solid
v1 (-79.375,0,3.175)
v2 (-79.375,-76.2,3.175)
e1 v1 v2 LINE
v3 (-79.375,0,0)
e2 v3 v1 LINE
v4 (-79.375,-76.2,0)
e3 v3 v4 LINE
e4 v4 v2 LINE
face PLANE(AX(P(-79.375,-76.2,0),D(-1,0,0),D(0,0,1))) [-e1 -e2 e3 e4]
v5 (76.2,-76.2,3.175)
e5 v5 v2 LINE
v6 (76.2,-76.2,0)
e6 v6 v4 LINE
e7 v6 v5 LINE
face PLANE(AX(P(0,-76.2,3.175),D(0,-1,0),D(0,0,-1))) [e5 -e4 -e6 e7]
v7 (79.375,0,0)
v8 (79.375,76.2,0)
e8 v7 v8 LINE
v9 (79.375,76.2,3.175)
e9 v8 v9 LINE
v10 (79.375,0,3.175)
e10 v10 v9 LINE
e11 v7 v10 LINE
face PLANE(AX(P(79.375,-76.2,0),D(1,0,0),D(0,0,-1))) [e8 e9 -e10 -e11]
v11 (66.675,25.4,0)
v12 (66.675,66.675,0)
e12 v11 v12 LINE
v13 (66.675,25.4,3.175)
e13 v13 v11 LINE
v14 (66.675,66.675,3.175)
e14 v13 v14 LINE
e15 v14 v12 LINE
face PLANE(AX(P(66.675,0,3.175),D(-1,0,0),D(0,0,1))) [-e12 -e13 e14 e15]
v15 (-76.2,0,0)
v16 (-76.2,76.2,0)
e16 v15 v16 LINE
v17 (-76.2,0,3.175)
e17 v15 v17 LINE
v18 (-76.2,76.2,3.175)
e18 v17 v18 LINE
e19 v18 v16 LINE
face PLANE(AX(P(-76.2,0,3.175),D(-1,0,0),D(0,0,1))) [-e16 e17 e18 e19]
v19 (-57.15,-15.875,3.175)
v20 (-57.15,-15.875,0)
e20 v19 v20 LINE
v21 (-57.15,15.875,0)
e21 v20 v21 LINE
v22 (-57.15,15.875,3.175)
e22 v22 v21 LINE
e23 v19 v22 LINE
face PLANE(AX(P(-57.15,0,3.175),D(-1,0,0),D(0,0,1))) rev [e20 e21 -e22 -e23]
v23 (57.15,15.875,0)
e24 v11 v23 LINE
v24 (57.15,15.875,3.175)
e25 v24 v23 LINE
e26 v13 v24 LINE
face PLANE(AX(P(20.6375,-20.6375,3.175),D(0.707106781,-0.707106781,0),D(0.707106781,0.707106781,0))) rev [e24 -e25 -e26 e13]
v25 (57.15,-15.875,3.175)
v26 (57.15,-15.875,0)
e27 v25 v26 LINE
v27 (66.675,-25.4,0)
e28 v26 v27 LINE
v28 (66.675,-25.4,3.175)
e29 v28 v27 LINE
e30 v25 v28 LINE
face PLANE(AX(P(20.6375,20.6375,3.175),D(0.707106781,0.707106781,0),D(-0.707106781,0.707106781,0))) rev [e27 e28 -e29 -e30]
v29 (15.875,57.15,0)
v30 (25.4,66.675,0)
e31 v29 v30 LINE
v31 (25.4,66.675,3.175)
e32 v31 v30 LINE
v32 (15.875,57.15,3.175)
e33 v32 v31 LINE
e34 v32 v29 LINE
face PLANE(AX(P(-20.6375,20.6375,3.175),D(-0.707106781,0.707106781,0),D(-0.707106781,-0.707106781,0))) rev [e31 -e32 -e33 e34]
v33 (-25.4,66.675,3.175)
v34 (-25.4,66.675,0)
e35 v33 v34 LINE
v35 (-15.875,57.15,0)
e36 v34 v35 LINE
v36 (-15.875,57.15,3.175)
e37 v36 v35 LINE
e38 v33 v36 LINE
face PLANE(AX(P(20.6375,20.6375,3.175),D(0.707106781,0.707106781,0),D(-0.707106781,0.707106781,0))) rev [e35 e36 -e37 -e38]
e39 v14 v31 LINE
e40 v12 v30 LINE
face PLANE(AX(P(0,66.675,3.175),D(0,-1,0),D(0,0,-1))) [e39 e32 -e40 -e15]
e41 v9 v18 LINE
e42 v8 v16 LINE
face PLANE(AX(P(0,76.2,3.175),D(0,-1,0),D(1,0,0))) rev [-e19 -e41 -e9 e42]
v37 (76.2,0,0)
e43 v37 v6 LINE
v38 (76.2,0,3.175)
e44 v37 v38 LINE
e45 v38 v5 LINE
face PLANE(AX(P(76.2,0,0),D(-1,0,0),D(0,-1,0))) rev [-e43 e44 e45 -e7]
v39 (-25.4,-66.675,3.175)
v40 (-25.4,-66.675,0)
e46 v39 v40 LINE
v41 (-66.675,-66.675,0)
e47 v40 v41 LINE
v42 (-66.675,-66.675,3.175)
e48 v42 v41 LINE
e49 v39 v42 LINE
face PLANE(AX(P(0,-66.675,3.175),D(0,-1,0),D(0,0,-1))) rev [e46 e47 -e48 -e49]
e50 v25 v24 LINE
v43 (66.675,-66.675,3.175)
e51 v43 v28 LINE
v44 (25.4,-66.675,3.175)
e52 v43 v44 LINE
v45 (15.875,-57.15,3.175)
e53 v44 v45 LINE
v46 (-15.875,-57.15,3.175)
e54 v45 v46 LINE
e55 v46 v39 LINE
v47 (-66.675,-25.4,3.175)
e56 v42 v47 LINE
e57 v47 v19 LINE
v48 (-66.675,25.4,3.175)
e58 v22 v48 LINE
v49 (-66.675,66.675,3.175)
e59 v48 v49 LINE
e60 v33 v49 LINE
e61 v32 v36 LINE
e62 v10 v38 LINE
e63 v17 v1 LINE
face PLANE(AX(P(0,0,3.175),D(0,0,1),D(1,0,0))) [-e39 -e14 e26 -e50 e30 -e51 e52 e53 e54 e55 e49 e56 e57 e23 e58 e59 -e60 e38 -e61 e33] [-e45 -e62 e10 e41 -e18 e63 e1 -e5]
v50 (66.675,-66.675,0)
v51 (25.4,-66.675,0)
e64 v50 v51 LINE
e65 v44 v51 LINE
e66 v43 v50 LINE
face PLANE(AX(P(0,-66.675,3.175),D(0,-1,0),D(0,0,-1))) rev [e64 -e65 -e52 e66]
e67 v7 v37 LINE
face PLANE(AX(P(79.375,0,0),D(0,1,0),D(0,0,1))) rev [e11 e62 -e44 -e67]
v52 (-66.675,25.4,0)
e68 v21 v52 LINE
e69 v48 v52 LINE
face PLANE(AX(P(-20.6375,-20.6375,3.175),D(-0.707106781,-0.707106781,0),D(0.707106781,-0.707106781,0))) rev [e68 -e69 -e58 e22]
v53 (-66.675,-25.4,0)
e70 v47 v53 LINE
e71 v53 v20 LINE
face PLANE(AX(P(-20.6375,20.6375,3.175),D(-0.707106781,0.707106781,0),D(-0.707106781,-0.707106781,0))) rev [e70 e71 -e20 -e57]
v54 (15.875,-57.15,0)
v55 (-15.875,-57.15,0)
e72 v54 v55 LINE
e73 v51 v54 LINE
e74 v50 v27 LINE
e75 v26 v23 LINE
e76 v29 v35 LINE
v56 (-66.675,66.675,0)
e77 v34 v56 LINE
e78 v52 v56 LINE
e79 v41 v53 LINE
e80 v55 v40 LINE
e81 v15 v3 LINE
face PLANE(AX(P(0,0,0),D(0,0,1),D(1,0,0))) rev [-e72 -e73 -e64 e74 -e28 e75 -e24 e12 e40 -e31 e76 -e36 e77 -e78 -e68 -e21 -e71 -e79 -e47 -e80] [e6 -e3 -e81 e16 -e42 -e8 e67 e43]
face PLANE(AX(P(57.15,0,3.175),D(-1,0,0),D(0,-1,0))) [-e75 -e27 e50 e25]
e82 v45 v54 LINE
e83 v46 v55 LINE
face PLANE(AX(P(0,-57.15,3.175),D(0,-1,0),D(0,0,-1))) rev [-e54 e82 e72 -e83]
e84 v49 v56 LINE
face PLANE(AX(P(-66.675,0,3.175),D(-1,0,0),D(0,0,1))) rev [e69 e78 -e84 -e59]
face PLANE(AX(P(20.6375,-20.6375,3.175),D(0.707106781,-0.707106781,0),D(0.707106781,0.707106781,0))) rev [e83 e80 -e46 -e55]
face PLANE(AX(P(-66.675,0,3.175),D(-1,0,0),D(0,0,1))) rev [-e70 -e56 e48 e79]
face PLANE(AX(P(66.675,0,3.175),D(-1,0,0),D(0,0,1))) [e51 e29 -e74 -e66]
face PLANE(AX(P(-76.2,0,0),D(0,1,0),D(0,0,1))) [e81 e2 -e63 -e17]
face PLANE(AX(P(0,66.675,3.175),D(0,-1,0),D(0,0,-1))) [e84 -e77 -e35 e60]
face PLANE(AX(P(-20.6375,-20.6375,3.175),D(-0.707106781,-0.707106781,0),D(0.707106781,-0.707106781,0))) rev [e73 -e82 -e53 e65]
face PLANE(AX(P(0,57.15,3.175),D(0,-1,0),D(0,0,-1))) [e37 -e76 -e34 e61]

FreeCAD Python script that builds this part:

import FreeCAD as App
import Part
import Sketcher
from FreeCAD import Vector
Q = App.Units.Quantity

doc = App.newDocument("Part")
params = doc.addObject("Spreadsheet::Sheet", "Params")
for row, (alias, value) in enumerate([
    ("sketch1_width", "6 in"),
    ("sketch1_width2", "1.25 in"),
    ("pad1_length", "0.125 in"),
    ("sketch2_height", "6 in"),
    ("sketch2_width", "0.125 in"),
    ("pad2_length", "0.125 in"),
    ("sketch3_height", "3 in"),
    ("sketch3_width", "0.125 in"),
    ("pad3_length", "0.125 in"),
    ("sketch4_height", "3 in"),
    ("sketch4_width", "0.125 in"),
    ("pocket1_length", "0.125 in"),
], start=1):
    params.set(f"A{row}", alias)
    params.set(f"B{row}", "=" + value)
    params.setAlias(f"B{row}", alias)

body = doc.addObject("PartDesign::Body", "Body")

# Sketch on XY plane
sketch1 = doc.addObject("Sketcher::SketchObject", "Sketch")
body.addObject(sketch1)
sketch1.AttachmentSupport = (doc.XY_Plane, [""])
sketch1.MapMode = "FlatFace"
sketch1.addGeometry(Part.LineSegment(Vector(-76, 76, 0), Vector(-76, -76, 0)), False)
sketch1.addGeometry(Part.LineSegment(Vector(-76, -76, 0), Vector(76, -76, 0)), False)
sketch1.addGeometry(Part.LineSegment(Vector(76, -76, 0), Vector(76, 76, 0)), False)
sketch1.addGeometry(Part.LineSegment(Vector(76, 76, 0), Vector(-76, 76, 0)), False)
sketch1.addGeometry(Part.LineSegment(Vector(-25, -67, 0), Vector(-67, -67, 0)), False)
sketch1.addGeometry(Part.LineSegment(Vector(-67, -67, 0), Vector(-67, -25, 0)), False)
sketch1.addGeometry(Part.LineSegment(Vector(-67, -25, 0), Vector(-57, -16, 0)), False)
sketch1.addGeometry(Part.LineSegment(Vector(-57, -16, 0), Vector(-57, 16, 0)), False)
sketch1.addGeometry(Part.LineSegment(Vector(-57, 16, 0), Vector(-67, 25, 0)), False)
sketch1.addGeometry(Part.LineSegment(Vector(-67, 25, 0), Vector(-67, 67, 0)), False)
sketch1.addGeometry(Part.LineSegment(Vector(-67, 67, 0), Vector(-25, 67, 0)), False)
sketch1.addGeometry(Part.LineSegment(Vector(-25, 67, 0), Vector(-16, 57, 0)), False)
sketch1.addGeometry(Part.LineSegment(Vector(-16, 57, 0), Vector(16, 57, 0)), False)
sketch1.addGeometry(Part.LineSegment(Vector(16, 57, 0), Vector(25, 67, 0)), False)
sketch1.addGeometry(Part.LineSegment(Vector(25, 67, 0), Vector(67, 67, 0)), False)
sketch1.addGeometry(Part.LineSegment(Vector(67, 67, 0), Vector(67, 25, 0)), False)
sketch1.addGeometry(Part.LineSegment(Vector(67, 25, 0), Vector(57, 16, 0)), False)
sketch1.addGeometry(Part.LineSegment(Vector(57, 16, 0), Vector(57, -16, 0)), False)
sketch1.addGeometry(Part.LineSegment(Vector(57, -16, 0), Vector(67, -25, 0)), False)
sketch1.addGeometry(Part.LineSegment(Vector(67, -25, 0), Vector(67, -67, 0)), False)
sketch1.addGeometry(Part.LineSegment(Vector(67, -67, 0), Vector(25, -67, 0)), False)
sketch1.addGeometry(Part.LineSegment(Vector(25, -67, 0), Vector(16, -57, 0)), False)
sketch1.addGeometry(Part.LineSegment(Vector(16, -57, 0), Vector(-16, -57, 0)), False)
sketch1.addGeometry(Part.LineSegment(Vector(-16, -57, 0), Vector(-25, -67, 0)), False)
sketch1.addConstraint(Sketcher.Constraint("Coincident", 0, 2, 1, 1))
sketch1.addConstraint(Sketcher.Constraint("Coincident", 1, 2, 2, 1))
sketch1.addConstraint(Sketcher.Constraint("Coincident", 2, 2, 3, 1))
sketch1.addConstraint(Sketcher.Constraint("Coincident", 3, 2, 0, 1))
sketch1.addConstraint(Sketcher.Constraint("Coincident", 4, 2, 5, 1))
sketch1.addConstraint(Sketcher.Constraint("Coincident", 5, 2, 6, 1))
sketch1.addConstraint(Sketcher.Constraint("Coincident", 6, 2, 7, 1))
sketch1.addConstraint(Sketcher.Constraint("Coincident", 7, 2, 8, 1))
sketch1.addConstraint(Sketcher.Constraint("Coincident", 8, 2, 9, 1))
sketch1.addConstraint(Sketcher.Constraint("Coincident", 9, 2, 10, 1))
sketch1.addConstraint(Sketcher.Constraint("Coincident", 10, 2, 11, 1))
sketch1.addConstraint(Sketcher.Constraint("Coincident", 11, 2, 12, 1))
sketch1.addConstraint(Sketcher.Constraint("Coincident", 12, 2, 13, 1))
sketch1.addConstraint(Sketcher.Constraint("Coincident", 13, 2, 14, 1))
sketch1.addConstraint(Sketcher.Constraint("Coincident", 14, 2, 15, 1))
sketch1.addConstraint(Sketcher.Constraint("Coincident", 15, 2, 16, 1))
sketch1.addConstraint(Sketcher.Constraint("Coincident", 16, 2, 17, 1))
sketch1.addConstraint(Sketcher.Constraint("Coincident", 17, 2, 18, 1))
sketch1.addConstraint(Sketcher.Constraint("Coincident", 18, 2, 19, 1))
sketch1.addConstraint(Sketcher.Constraint("Coincident", 19, 2, 20, 1))
sketch1.addConstraint(Sketcher.Constraint("Coincident", 20, 2, 21, 1))
sketch1.addConstraint(Sketcher.Constraint("Coincident", 21, 2, 22, 1))
sketch1.addConstraint(Sketcher.Constraint("Coincident", 22, 2, 23, 1))
sketch1.addConstraint(Sketcher.Constraint("Coincident", 23, 2, 4, 1))
sketch1.addConstraint(Sketcher.Constraint("Vertical", 0))
sketch1.addConstraint(Sketcher.Constraint("Horizontal", 1))
sketch1.addConstraint(Sketcher.Constraint("Vertical", 2))
sketch1.addConstraint(Sketcher.Constraint("Horizontal", 3))
sketch1.addConstraint(Sketcher.Constraint("Horizontal", 4))
sketch1.addConstraint(Sketcher.Constraint("Vertical", 5))
sketch1.addConstraint(Sketcher.Constraint("Vertical", 7))
sketch1.addConstraint(Sketcher.Constraint("Vertical", 9))
sketch1.addConstraint(Sketcher.Constraint("Horizontal", 10))
sketch1.addConstraint(Sketcher.Constraint("Horizontal", 12))
sketch1.addConstraint(Sketcher.Constraint("Horizontal", 14))
sketch1.addConstraint(Sketcher.Constraint("Vertical", 15))
sketch1.addConstraint(Sketcher.Constraint("Vertical", 17))
sketch1.addConstraint(Sketcher.Constraint("Vertical", 19))
sketch1.addConstraint(Sketcher.Constraint("Horizontal", 20))
sketch1.addConstraint(Sketcher.Constraint("Horizontal", 22))
sketch1.addConstraint(Sketcher.Constraint("Symmetric", 0, 2, 2, 2, -1, 1))
sketch1.addConstraint(Sketcher.Constraint("Symmetric", 4, 2, 14, 2, -1, 1))
sketch1.addConstraint(Sketcher.Constraint("Symmetric", 6, 2, 16, 2, -1, 1))
sketch1.addConstraint(Sketcher.Constraint("Symmetric", 8, 2, 18, 2, -1, 1))
sketch1.addConstraint(Sketcher.Constraint("Symmetric", 10, 2, 20, 2, -1, 1))
sketch1.addConstraint(Sketcher.Constraint("Symmetric", 11, 2, 21, 2, -1, 1))
sketch1.addConstraint(Sketcher.Constraint("Symmetric", 10, 2, 13, 2, -2))
sketch1.addConstraint(Sketcher.Constraint("Symmetric", 8, 2, 15, 2, -2))
sketch1.addConstraint(Sketcher.Constraint("Perpendicular", 6, 8))
sketch1.addConstraint(Sketcher.Constraint("Parallel", 8, 11))
sketch1.addConstraint(Sketcher.Constraint("Perpendicular", 11, 13))
sketch1.addConstraint(Sketcher.Constraint("Parallel", 13, 16))
sketch1.addConstraint(Sketcher.Constraint("Perpendicular", 16, 18))
sketch1.addConstraint(Sketcher.Constraint("Perpendicular", 21, 23))
sketch1.addConstraint(Sketcher.Constraint("Horizontal", 7, 2, 16, 2))
sketch1.addConstraint(Sketcher.Constraint("Vertical", 11, 2, 22, 2))
sketch1.addConstraint(Sketcher.Constraint("Equal", 3, 0))
sketch1.addConstraint(Sketcher.Constraint("Equal", 20, 5))
sketch1.addConstraint(Sketcher.Constraint("Equal", 22, 7))
sketch1.addConstraint(Sketcher.Constraint("Equal", 8, 11))
sketch1.addConstraint(Sketcher.Constraint("DistanceX", 1, 1, 1, 2, Q("6 in")))
sketch1.addConstraint(Sketcher.Constraint("DistanceY", 5, 2, -1, 1, Q("1 in")))
sketch1.addConstraint(Sketcher.Constraint("DistanceY", 4, 2, 6, 2, Q("2 in")))
sketch1.addConstraint(Sketcher.Constraint("DistanceX", 12, 1, 12, 2, Q("1.25 in")))
sketch1.setExpression("Constraints[60]", "Params.sketch1_width")
sketch1.setExpression("Constraints[63]", "Params.sketch1_width2")
pad1 = doc.addObject("PartDesign::Pad", "Pad")
body.addObject(pad1)
pad1.Profile = sketch1
pad1.setExpression("Length", "Params.pad1_length")

# Sketch on XY plane
sketch2 = doc.addObject("Sketcher::SketchObject", "Sketch001")
body.addObject(sketch2)
sketch2.AttachmentSupport = (doc.XY_Plane, [""])
sketch2.MapMode = "FlatFace"
sketch2.AttachmentOffset = App.Placement(Vector(0, 0, 0.125 * 25.4), App.Rotation())
sketch2.addGeometry(Part.LineSegment(Vector(76.2, 76.2, 0), Vector(76.2, -76.2, 0)), False)
sketch2.addGeometry(Part.LineSegment(Vector(76.2, -76.2, 0), Vector(79.4, -76.2, 0)), False)
sketch2.addGeometry(Part.LineSegment(Vector(79.4, -76.2, 0), Vector(79.4, 76.2, 0)), False)
sketch2.addGeometry(Part.LineSegment(Vector(79.4, 76.2, 0), Vector(76.2, 76.2, 0)), False)
sketch2.addConstraint(Sketcher.Constraint("Coincident", 0, 2, 1, 1))
sketch2.addConstraint(Sketcher.Constraint("Coincident", 1, 2, 2, 1))
sketch2.addConstraint(Sketcher.Constraint("Coincident", 2, 2, 3, 1))
sketch2.addConstraint(Sketcher.Constraint("Coincident", 3, 2, 0, 1))
sketch2.addConstraint(Sketcher.Constraint("Vertical", 0))
sketch2.addConstraint(Sketcher.Constraint("Horizontal", 1))
sketch2.addConstraint(Sketcher.Constraint("Vertical", 2))
sketch2.addConstraint(Sketcher.Constraint("Horizontal", 3))
sketch2.addConstraint(Sketcher.Constraint("DistanceY", 0, 2, 0, 1, Q("6 in")))
sketch2.addConstraint(Sketcher.Constraint("DistanceX", -1, 1, 0, 2, Q("3 in")))
sketch2.addConstraint(Sketcher.Constraint("DistanceY", 0, 2, -1, 1, Q("3 in")))
sketch2.addConstraint(Sketcher.Constraint("DistanceX", 1, 1, 1, 2, Q("0.125 in")))
sketch2.setExpression("Constraints[8]", "Params.sketch2_height")
sketch2.setExpression("Constraints[11]", "Params.sketch2_width")
pad2 = doc.addObject("PartDesign::Pad", "Pad001")
body.addObject(pad2)
pad2.Profile = sketch2
pad2.setExpression("Length", "Params.pad2_length")
pad2.Reversed = True

# Sketch on XY plane
sketch3 = doc.addObject("Sketcher::SketchObject", "Sketch002")
body.addObject(sketch3)
sketch3.AttachmentSupport = (doc.XY_Plane, [""])
sketch3.MapMode = "FlatFace"
sketch3.AttachmentOffset = App.Placement(Vector(0, 0, 0.125 * 25.4), App.Rotation())
sketch3.addGeometry(Part.LineSegment(Vector(76.2, 76.2, 0), Vector(76.2, 0, 0)), False)
sketch3.addGeometry(Part.LineSegment(Vector(76.2, 0, 0), Vector(79.4, 0, 0)), False)
sketch3.addGeometry(Part.LineSegment(Vector(79.4, 0, 0), Vector(79.4, 76.2, 0)), False)
sketch3.addGeometry(Part.LineSegment(Vector(79.4, 76.2, 0), Vector(76.2, 76.2, 0)), False)
sketch3.addGeometry(Part.LineSegment(Vector(-79.4, 0, 0), Vector(-79.4, -76.2, 0)), False)
sketch3.addGeometry(Part.LineSegment(Vector(-79.4, -76.2, 0), Vector(-76.2, -76.2, 0)), False)
sketch3.addGeometry(Part.LineSegment(Vector(-76.2, -76.2, 0), Vector(-76.2, 0, 0)), False)
sketch3.addGeometry(Part.LineSegment(Vector(-76.2, 0, 0), Vector(-79.4, 0, 0)), False)
sketch3.addConstraint(Sketcher.Constraint("Coincident", 0, 2, 1, 1))
sketch3.addConstraint(Sketcher.Constraint("Coincident", 1, 2, 2, 1))
sketch3.addConstraint(Sketcher.Constraint("Coincident", 2, 2, 3, 1))
sketch3.addConstraint(Sketcher.Constraint("Coincident", 3, 2, 0, 1))
sketch3.addConstraint(Sketcher.Constraint("Coincident", 4, 2, 5, 1))
sketch3.addConstraint(Sketcher.Constraint("Coincident", 5, 2, 6, 1))
sketch3.addConstraint(Sketcher.Constraint("Coincident", 6, 2, 7, 1))
sketch3.addConstraint(Sketcher.Constraint("Coincident", 7, 2, 4, 1))
sketch3.addConstraint(Sketcher.Constraint("Vertical", 0))
sketch3.addConstraint(Sketcher.Constraint("Horizontal", 1))
sketch3.addConstraint(Sketcher.Constraint("Vertical", 2))
sketch3.addConstraint(Sketcher.Constraint("Horizontal", 3))
sketch3.addConstraint(Sketcher.Constraint("Vertical", 4))
sketch3.addConstraint(Sketcher.Constraint("Horizontal", 5))
sketch3.addConstraint(Sketcher.Constraint("Vertical", 6))
sketch3.addConstraint(Sketcher.Constraint("Horizontal", 7))
sketch3.addConstraint(Sketcher.Constraint("Symmetric", 2, 2, 4, 2, -1, 1))
sketch3.addConstraint(Sketcher.Constraint("Symmetric", 0, 2, 6, 2, -1, 1))
sketch3.addConstraint(Sketcher.Constraint("PointOnObject", 0, 2, -1))
sketch3.addConstraint(Sketcher.Constraint("DistanceY", 0, 2, 0, 1, Q("3 in")))
sketch3.addConstraint(Sketcher.Constraint("DistanceX", -1, 1, 0, 2, Q("3 in")))
sketch3.addConstraint(Sketcher.Constraint("DistanceX", 1, 1, 1, 2, Q("0.125 in")))
sketch3.setExpression("Constraints[19]", "Params.sketch3_height")
sketch3.setExpression("Constraints[21]", "Params.sketch3_width")
pad3 = doc.addObject("PartDesign::Pad", "Pad002")
body.addObject(pad3)
pad3.Profile = sketch3
pad3.setExpression("Length", "Params.pad3_length")
pad3.Reversed = True

# Sketch on XY plane
sketch4 = doc.addObject("Sketcher::SketchObject", "Sketch003")
body.addObject(sketch4)
sketch4.AttachmentSupport = (doc.XY_Plane, [""])
sketch4.MapMode = "FlatFace"
sketch4.AttachmentOffset = App.Placement(Vector(0, 0, 0.125 * 25.4), App.Rotation())
sketch4.addGeometry(Part.LineSegment(Vector(76.2, 0, 0), Vector(76.2, -76.2, 0)), False)
sketch4.addGeometry(Part.LineSegment(Vector(76.2, -76.2, 0), Vector(79.4, -76.2, 0)), False)
sketch4.addGeometry(Part.LineSegment(Vector(79.4, -76.2, 0), Vector(79.4, 0, 0)), False)
sketch4.addGeometry(Part.LineSegment(Vector(79.4, 0, 0), Vector(76.2, 0, 0)), False)
sketch4.addConstraint(Sketcher.Constraint("Coincident", 0, 2, 1, 1))
sketch4.addConstraint(Sketcher.Constraint("Coincident", 1, 2, 2, 1))
sketch4.addConstraint(Sketcher.Constraint("Coincident", 2, 2, 3, 1))
sketch4.addConstraint(Sketcher.Constraint("Coincident", 3, 2, 0, 1))
sketch4.addConstraint(Sketcher.Constraint("Vertical", 0))
sketch4.addConstraint(Sketcher.Constraint("Horizontal", 1))
sketch4.addConstraint(Sketcher.Constraint("Vertical", 2))
sketch4.addConstraint(Sketcher.Constraint("Horizontal", 3))
sketch4.addConstraint(Sketcher.Constraint("PointOnObject", 2, 2, -1))
sketch4.addConstraint(Sketcher.Constraint("DistanceY", 0, 2, 0, 1, Q("3 in")))
sketch4.addConstraint(Sketcher.Constraint("DistanceX", -1, 1, 0, 2, Q("3 in")))
sketch4.addConstraint(Sketcher.Constraint("DistanceX", 1, 1, 1, 2, Q("0.125 in")))
sketch4.setExpression("Constraints[9]", "Params.sketch4_height")
sketch4.setExpression("Constraints[11]", "Params.sketch4_width")
pocket1 = doc.addObject("PartDesign::Pocket", "Pocket")
body.addObject(pocket1)
pocket1.Profile = sketch4
pocket1.setExpression("Length", "Params.pocket1_length")

doc.recompute()
